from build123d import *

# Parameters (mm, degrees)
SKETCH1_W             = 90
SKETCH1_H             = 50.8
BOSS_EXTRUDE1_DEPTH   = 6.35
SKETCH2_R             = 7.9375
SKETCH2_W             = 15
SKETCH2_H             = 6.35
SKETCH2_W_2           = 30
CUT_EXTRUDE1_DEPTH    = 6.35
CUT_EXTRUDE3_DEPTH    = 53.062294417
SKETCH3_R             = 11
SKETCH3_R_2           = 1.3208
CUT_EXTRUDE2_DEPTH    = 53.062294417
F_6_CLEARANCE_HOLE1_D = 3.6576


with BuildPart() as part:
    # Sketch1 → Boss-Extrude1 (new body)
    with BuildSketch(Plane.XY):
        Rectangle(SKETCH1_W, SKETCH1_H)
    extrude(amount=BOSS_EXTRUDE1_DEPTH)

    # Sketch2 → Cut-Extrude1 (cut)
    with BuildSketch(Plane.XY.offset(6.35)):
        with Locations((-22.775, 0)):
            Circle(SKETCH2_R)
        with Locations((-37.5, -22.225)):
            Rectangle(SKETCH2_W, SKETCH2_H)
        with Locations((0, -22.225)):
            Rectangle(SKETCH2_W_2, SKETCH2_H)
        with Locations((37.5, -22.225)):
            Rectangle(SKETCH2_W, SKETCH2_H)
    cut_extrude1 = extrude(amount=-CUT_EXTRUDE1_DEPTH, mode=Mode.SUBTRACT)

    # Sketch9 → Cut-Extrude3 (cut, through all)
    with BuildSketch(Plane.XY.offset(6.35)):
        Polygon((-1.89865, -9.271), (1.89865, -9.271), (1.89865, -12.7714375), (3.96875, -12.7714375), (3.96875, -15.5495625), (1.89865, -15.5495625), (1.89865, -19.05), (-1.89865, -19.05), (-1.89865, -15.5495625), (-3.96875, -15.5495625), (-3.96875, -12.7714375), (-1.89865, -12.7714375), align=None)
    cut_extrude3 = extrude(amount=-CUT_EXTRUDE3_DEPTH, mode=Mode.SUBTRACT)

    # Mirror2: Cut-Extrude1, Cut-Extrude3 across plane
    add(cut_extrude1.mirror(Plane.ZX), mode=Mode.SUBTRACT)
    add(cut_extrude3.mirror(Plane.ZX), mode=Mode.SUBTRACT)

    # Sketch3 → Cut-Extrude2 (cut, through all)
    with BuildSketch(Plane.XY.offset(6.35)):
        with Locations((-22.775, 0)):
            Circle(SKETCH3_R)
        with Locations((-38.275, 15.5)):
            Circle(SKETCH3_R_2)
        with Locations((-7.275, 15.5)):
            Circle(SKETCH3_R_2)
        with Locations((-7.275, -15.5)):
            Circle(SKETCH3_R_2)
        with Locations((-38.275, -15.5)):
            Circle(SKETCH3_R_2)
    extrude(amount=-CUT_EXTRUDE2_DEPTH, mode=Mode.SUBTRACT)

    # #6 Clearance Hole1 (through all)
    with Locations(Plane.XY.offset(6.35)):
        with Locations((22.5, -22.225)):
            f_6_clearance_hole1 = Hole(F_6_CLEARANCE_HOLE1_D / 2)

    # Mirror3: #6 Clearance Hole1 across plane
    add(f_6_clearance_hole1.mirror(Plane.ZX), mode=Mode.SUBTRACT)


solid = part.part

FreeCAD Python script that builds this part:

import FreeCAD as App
import Part
import Sketcher

V = App.Vector
Q = App.Units.Quantity

doc = App.newDocument("Part")
body = doc.addObject("PartDesign::Body", "Body")

# Sketch on XY plane
sketch1 = body.newObject("Sketcher::SketchObject", "Sketch")
sketch1.AttachmentSupport = (doc.getObject("XY_Plane"), [""])
sketch1.MapMode = "FlatFace"
sketch1.addGeometry([
    Part.LineSegment(V(-45, 25, 0), V(-45, -25, 0)),
    Part.LineSegment(V(-45, -25, 0), V(45, -25, 0)),
    Part.LineSegment(V(45, -25, 0), V(45, 25, 0)),
    Part.LineSegment(V(45, 25, 0), V(-45, 25, 0)),
], False)
sketch1.addConstraint([
    Sketcher.Constraint("Coincident", 0, 2, 1, 1),
    Sketcher.Constraint("Coincident", 1, 2, 2, 1),
    Sketcher.Constraint("Coincident", 2, 2, 3, 1),
    Sketcher.Constraint("Coincident", 3, 2, 0, 1),
    Sketcher.Constraint("Vertical", 0),
    Sketcher.Constraint("Horizontal", 1),
    Sketcher.Constraint("Vertical", 2),
    Sketcher.Constraint("Horizontal", 3),
    Sketcher.Constraint("Symmetric", 0, 2, 2, 2, -1, 1),
    Sketcher.Constraint("DistanceY", 0, 2, 0, 1, Q("2 in")),
    Sketcher.Constraint("DistanceX", 1, 1, 1, 2, 90.0),
])
pad1 = body.newObject("PartDesign::Pad", "Pad")
pad1.Profile = sketch1
pad1.Length = Q("0.25 in")

# Sketch on XY plane
sketch2 = body.newObject("Sketcher::SketchObject", "Sketch001")
sketch2.AttachmentSupport = (doc.getObject("XY_Plane"), [""])
sketch2.MapMode = "FlatFace"
sketch2.AttachmentOffset = App.Placement(V(0, 0, 0.25 * 25.4), App.Rotation())
sketch2.addGeometry([
    Part.Circle(V(-23, 0, 0), V(0, 0, 1), 8),  # 0
    Part.LineSegment(V(-45, -19, 0), V(-45, -25, 0)),  # 1
    Part.LineSegment(V(-45, -25, 0), V(-30, -25, 0)),  # 2
    Part.LineSegment(V(-30, -25, 0), V(-30, -19, 0)),  # 3
    Part.LineSegment(V(-30, -19, 0), V(-45, -19, 0)),  # 4
    Part.LineSegment(V(-15, -19, 0), V(-15, -25, 0)),  # 5
    Part.LineSegment(V(-15, -25, 0), V(15, -25, 0)),  # 6
    Part.LineSegment(V(15, -25, 0), V(15, -19, 0)),  # 7
    Part.LineSegment(V(15, -19, 0), V(-15, -19, 0)),  # 8
    Part.LineSegment(V(30, -19, 0), V(30, -25, 0)),  # 9
    Part.LineSegment(V(30, -25, 0), V(45, -25, 0)),  # 10
    Part.LineSegment(V(45, -25, 0), V(45, -19, 0)),  # 11
    Part.LineSegment(V(45, -19, 0), V(30, -19, 0)),  # 12
], False)
sketch2.addConstraint([
    Sketcher.Constraint("Coincident", 1, 2, 2, 1),
    Sketcher.Constraint("Coincident", 2, 2, 3, 1),
    Sketcher.Constraint("Coincident", 3, 2, 4, 1),
    Sketcher.Constraint("Coincident", 4, 2, 1, 1),
    Sketcher.Constraint("Coincident", 5, 2, 6, 1),
    Sketcher.Constraint("Coincident", 6, 2, 7, 1),
    Sketcher.Constraint("Coincident", 7, 2, 8, 1),
    Sketcher.Constraint("Coincident", 8, 2, 5, 1),
    Sketcher.Constraint("Coincident", 9, 2, 10, 1),
    Sketcher.Constraint("Coincident", 10, 2, 11, 1),
    Sketcher.Constraint("Coincident", 11, 2, 12, 1),
    Sketcher.Constraint("Coincident", 12, 2, 9, 1),
    Sketcher.Constraint("Vertical", 1),
    Sketcher.Constraint("Horizontal", 2),
    Sketcher.Constraint("Vertical", 3),
    Sketcher.Constraint("Horizontal", 4),
    Sketcher.Constraint("Vertical", 5),
    Sketcher.Constraint("Horizontal", 6),
    Sketcher.Constraint("Vertical", 7),
    Sketcher.Constraint("Horizontal", 8),
    Sketcher.Constraint("Vertical", 9),
    Sketcher.Constraint("Horizontal", 10),
    Sketcher.Constraint("Vertical", 11),
    Sketcher.Constraint("Horizontal", 12),
    Sketcher.Constraint("Symmetric", 2, 2, 9, 2, -2),
    Sketcher.Constraint("Symmetric", 4, 2, 11, 2, -2),
    Sketcher.Constraint("PointOnObject", 0, 3, -1),
    Sketcher.Constraint("Horizontal", 2, 2, 5, 2),
    Sketcher.Constraint("Horizontal", 4, 2, 7, 2),
    Sketcher.Constraint("Diameter", 0, Q("0.625 in")),
    Sketcher.Constraint("DistanceY", 1, 2, -1, 1, Q("1 in")),
    Sketcher.Constraint("DistanceY", 1, 2, 1, 1, Q("0.25 in")),
    Sketcher.Constraint("DistanceX", 1, 2, 0, 3, Q("0.875 in")),
    Sketcher.Constraint("DistanceX", 2, 1, 2, 2, 15.0),
    Sketcher.Constraint("DistanceX", 6, 1, 6, 2, 30.0),
    Sketcher.Constraint("DistanceX", 0, 3, -1, 1, 22.775),
    Sketcher.Constraint("DistanceX", 5, 2, -1, 1, 15.0),
])
pocket1 = body.newObject("PartDesign::Pocket", "Pocket")
pocket1.Profile = sketch2
pocket1.Length = Q("0.25 in")

# Sketch on XY plane
sketch3 = body.newObject("Sketcher::SketchObject", "Sketch002")
sketch3.AttachmentSupport = (doc.getObject("XY_Plane"), [""])
sketch3.MapMode = "FlatFace"
sketch3.AttachmentOffset = App.Placement(V(0, 0, 0.25 * 25.4), App.Rotation())
sketch3.addGeometry([
    Part.LineSegment(V(1.9, -9.3, 0), V(-1.9, -9.3, 0)),  # 0
    Part.LineSegment(V(-1.9, -9.3, 0), V(-1.9, -12.8, 0)),  # 1
    Part.LineSegment(V(-1.9, -12.8, 0), V(-4, -12.8, 0)),  # 2
    Part.LineSegment(V(-4, -12.8, 0), V(-4, -15.5, 0)),  # 3
    Part.LineSegment(V(-4, -15.5, 0), V(-1.9, -15.5, 0)),  # 4
    Part.LineSegment(V(-1.9, -15.5, 0), V(-1.9, -19.1, 0)),  # 5
    Part.LineSegment(V(-1.9, -19.1, 0), V(1.9, -19.1, 0)),  # 6
    Part.LineSegment(V(1.9, -19.1, 0), V(1.9, -15.5, 0)),  # 7
    Part.LineSegment(V(1.9, -15.5, 0), V(4, -15.5, 0)),  # 8
    Part.LineSegment(V(4, -15.5, 0), V(4, -12.8, 0)),  # 9
    Part.LineSegment(V(4, -12.8, 0), V(1.9, -12.8, 0)),  # 10
    Part.LineSegment(V(1.9, -12.8, 0), V(1.9, -9.3, 0)),  # 11
], False)
sketch3.addConstraint([
    Sketcher.Constraint("Coincident", 0, 2, 1, 1),
    Sketcher.Constraint("Coincident", 1, 2, 2, 1),
    Sketcher.Constraint("Coincident", 2, 2, 3, 1),
    Sketcher.Constraint("Coincident", 3, 2, 4, 1),
    Sketcher.Constraint("Coincident", 4, 2, 5, 1),
    Sketcher.Constraint("Coincident", 5, 2, 6, 1),
    Sketcher.Constraint("Coincident", 6, 2, 7, 1),
    Sketcher.Constraint("Coincident", 7, 2, 8, 1),
    Sketcher.Constraint("Coincident", 8, 2, 9, 1),
    Sketcher.Constraint("Coincident", 9, 2, 10, 1),
    Sketcher.Constraint("Coincident", 10, 2, 11, 1),
    Sketcher.Constraint("Coincident", 11, 2, 0, 1),
    Sketcher.Constraint("Horizontal", 0),
    Sketcher.Constraint("Vertical", 1),
    Sketcher.Constraint("Horizontal", 2),
    Sketcher.Constraint("Vertical", 3),
    Sketcher.Constraint("Horizontal", 4),
    Sketcher.Constraint("Vertical", 5),
    Sketcher.Constraint("Horizontal", 6),
    Sketcher.Constraint("Vertical", 7),
    Sketcher.Constraint("Horizontal", 8),
    Sketcher.Constraint("Vertical", 9),
    Sketcher.Constraint("Horizontal", 10),
    Sketcher.Constraint("Vertical", 11),
    Sketcher.Constraint("Symmetric", 4, 2, 7, 2, -2),
    Sketcher.Constraint("Symmetric", 2, 2, 9, 2, -2),
    Sketcher.Constraint("Vertical", 1, 2, 4, 2),
    Sketcher.Constraint("Vertical", 7, 2, 10, 2),
    Sketcher.Constraint("Equal", 1, 5),
    Sketcher.Constraint("DistanceY", 3, 2, 3, 1, Q("0.109375 in")),
    Sketcher.Constraint("DistanceY", 5, 2, -1, 1, Q("0.75 in")),
    Sketcher.Constraint("DistanceX", 0, 2, 0, 1, Q("0.1495 in")),
    Sketcher.Constraint("DistanceX", 2, 2, 2, 1, Q("0.0815 in")),
    Sketcher.Constraint("DistanceY", 0, 2, -1, 1, Q("0.365 in")),
])
pocket2 = body.newObject("PartDesign::Pocket", "Pocket001")
pocket2.Profile = sketch3
pocket2.Type = "ThroughAll"
doc.recompute()

mirrored = body.newObject("PartDesign::Mirrored", "Mirrored")
mirrored.Originals = [pocket1, pocket2]
mirrored.MirrorPlane = (doc.getObject("XZ_Plane"), [""])
body.Tip = mirrored

# Sketch on XY plane
sketch4 = body.newObject("Sketcher::SketchObject", "Sketch003")
sketch4.AttachmentSupport = (doc.getObject("XY_Plane"), [""])
sketch4.MapMode = "FlatFace"
sketch4.AttachmentOffset = App.Placement(V(0, 0, 0.25 * 25.4), App.Rotation())
sketch4.addGeometry([
    Part.Circle(V(-22.8, 0, 0), V(0, 0, 1), 11),  # 0
    Part.Circle(V(-38.3, 15.5, 0), V(0, 0, 1), 1.3),  # 1
    Part.Circle(V(-7.3, 15.5, 0), V(0, 0, 1), 1.3),  # 2
    Part.Circle(V(-7.3, -15.5, 0), V(0, 0, 1), 1.3),  # 3
    Part.Circle(V(-38.3, -15.5, 0), V(0, 0, 1), 1.3),  # 4
], False)
sketch4.addConstraint([
    Sketcher.Constraint("Equal", 1, 2),
    Sketcher.Constraint("Equal", 2, 3),
    Sketcher.Constraint("Equal", 3, 4),
    Sketcher.Constraint("Symmetric", 2, 3, 3, 3, -1),
    Sketcher.Constraint("Symmetric", 1, 3, 4, 3, -1),
    Sketcher.Constraint("PointOnObject", 0, 3, -1),
    Sketcher.Constraint("Horizontal", 1, 3, 2, 3),
    Sketcher.Constraint("Diameter", 1, Q("0.104 in")),
    Sketcher.Constraint("Diameter", 0, 22.0),
    Sketcher.Constraint("DistanceX", 0, 3, -1, 1, 22.775),
    Sketcher.Constraint("DistanceX", 1, 3, -1, 1, 38.275),
    Sketcher.Constraint("DistanceY", -1, 1, 1, 3, 15.5),
    Sketcher.Constraint("DistanceX", 2, 3, -1, 1, 7.275),
])
pocket3 = body.newObject("PartDesign::Pocket", "Pocket002")
pocket3.Profile = sketch4
pocket3.Type = "ThroughAll"

# Sketch on XY plane
sketch5 = body.newObject("Sketcher::SketchObject", "Sketch004")
sketch5.AttachmentSupport = (doc.getObject("XY_Plane"), [""])
sketch5.MapMode = "FlatFace"
sketch5.AttachmentOffset = App.Placement(V(0, 0, 0.25 * 25.4), App.Rotation())
sketch5.addGeometry(Part.Circle(V(22.5, -22.2, 0), V(0, 0, 1), 1.8), False)
sketch5.addConstraint([
    Sketcher.Constraint("Diameter", 0, Q("0.144 in")),
    Sketcher.Constraint("DistanceY", 0, 3, -1, 1, Q("0.875 in")),
    Sketcher.Constraint("DistanceX", -1, 1, 0, 3, 22.5),
])
doc.recompute()
hole = body.newObject("PartDesign::Hole", "Hole")
hole.Profile = sketch5
hole.ThreadType = "None"
hole.Diameter = Q("0.144 in")
hole.DepthType = "ThroughAll"
doc.recompute()

mirrored2 = body.newObject("PartDesign::Mirrored", "Mirrored001")
mirrored2.Originals = [hole]
mirrored2.MirrorPlane = (doc.getObject("XZ_Plane"), [""])
body.Tip = mirrored2

doc.recompute()
